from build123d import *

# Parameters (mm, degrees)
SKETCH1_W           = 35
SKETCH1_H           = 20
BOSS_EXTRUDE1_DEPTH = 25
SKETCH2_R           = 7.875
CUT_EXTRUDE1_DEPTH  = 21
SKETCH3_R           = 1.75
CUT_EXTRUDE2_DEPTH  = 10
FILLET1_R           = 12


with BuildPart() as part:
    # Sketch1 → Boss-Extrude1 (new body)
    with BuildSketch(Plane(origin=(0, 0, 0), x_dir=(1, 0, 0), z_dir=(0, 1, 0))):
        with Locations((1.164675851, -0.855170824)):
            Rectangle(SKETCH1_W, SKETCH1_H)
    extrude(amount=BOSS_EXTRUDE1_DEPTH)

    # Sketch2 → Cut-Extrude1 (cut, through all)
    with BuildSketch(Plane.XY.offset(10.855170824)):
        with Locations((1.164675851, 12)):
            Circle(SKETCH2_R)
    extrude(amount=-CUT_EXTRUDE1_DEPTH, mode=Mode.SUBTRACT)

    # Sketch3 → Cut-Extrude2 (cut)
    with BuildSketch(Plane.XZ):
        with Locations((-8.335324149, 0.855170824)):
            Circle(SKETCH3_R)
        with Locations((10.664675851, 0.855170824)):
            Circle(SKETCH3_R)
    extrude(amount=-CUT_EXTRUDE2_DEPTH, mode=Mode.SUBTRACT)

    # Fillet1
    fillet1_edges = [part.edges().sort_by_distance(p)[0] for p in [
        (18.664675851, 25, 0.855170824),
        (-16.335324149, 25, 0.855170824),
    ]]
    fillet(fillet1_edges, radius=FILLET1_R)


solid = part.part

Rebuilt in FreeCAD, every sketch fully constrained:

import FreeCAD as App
import Part
import Sketcher
from FreeCAD import Vector


def edges_at(feature, points):
    """Names of the edges that pass closest to the given points."""
    edges = feature.Shape.Edges
    near = lambda p: min(range(len(edges)), key=lambda i: edges[i].distToShape(Part.Vertex(*p))[0])
    return sorted({f"Edge{near(p) + 1}" for p in points})

doc = App.newDocument("Part")
body = doc.addObject("PartDesign::Body", "Body")

# Sketch on XZ plane
sketch1 = body.newObject("Sketcher::SketchObject", "Sketch")
sketch1.AttachmentSupport = (doc.getObject("XZ_Plane"), [""])
sketch1.MapMode = "FlatFace"
sketch1.addGeometry([
    Part.LineSegment(Vector(-16, -9, 0), Vector(-16, 11, 0)),
    Part.LineSegment(Vector(-16, 11, 0), Vector(19, 11, 0)),
    Part.LineSegment(Vector(19, 11, 0), Vector(19, -9, 0)),
    Part.LineSegment(Vector(19, -9, 0), Vector(-16, -9, 0)),
], False)
sketch1.addConstraint([
    Sketcher.Constraint("Coincident", 0, 2, 1, 1),
    Sketcher.Constraint("Coincident", 1, 2, 2, 1),
    Sketcher.Constraint("Coincident", 2, 2, 3, 1),
    Sketcher.Constraint("Coincident", 3, 2, 0, 1),
    Sketcher.Constraint("Vertical", 0),
    Sketcher.Constraint("Horizontal", 1),
    Sketcher.Constraint("Vertical", 2),
    Sketcher.Constraint("Horizontal", 3),
    Sketcher.Constraint("DistanceX", 1, 1, 1, 2, 35.0),
    Sketcher.Constraint("DistanceY", 0, 1, 0, 2, 20.0),
    Sketcher.Constraint("DistanceY", -1, 1, 0, 2, 10.855171),
    Sketcher.Constraint("DistanceX", 0, 2, -1, 1, 16.335324),
])
pad1 = body.newObject("PartDesign::Pad", "Pad")
pad1.Profile = sketch1
pad1.Length = 25
pad1.Reversed = True

# Sketch on XY plane
sketch2 = body.newObject("Sketcher::SketchObject", "Sketch001")
sketch2.AttachmentSupport = (doc.getObject("XY_Plane"), [""])
sketch2.MapMode = "FlatFace"
sketch2.AttachmentOffset = App.Placement(Vector(0, 0, 10.855171), App.Rotation())
sketch2.addGeometry(Part.Circle(Vector(1, 12, 0), Vector(0, 0, 1), 8), False)
sketch2.addConstraint([
    Sketcher.Constraint("Diameter", 0, 15.75),
    Sketcher.Constraint("DistanceY", -1, 1, 0, 3, 12.0),
    Sketcher.Constraint("DistanceX", -1, 1, 0, 3, 1.164676),
])
pocket1 = body.newObject("PartDesign::Pocket", "Pocket")
pocket1.Profile = sketch2
pocket1.Type = "ThroughAll"

# Sketch on XZ plane
sketch3 = body.newObject("Sketcher::SketchObject", "Sketch002")
sketch3.AttachmentSupport = (doc.getObject("XZ_Plane"), [""])
sketch3.MapMode = "FlatFace"
sketch3.addGeometry([
    Part.Circle(Vector(-8.3, 0.9, 0), Vector(0, 0, 1), 1.8),
    Part.Circle(Vector(10.7, 0.9, 0), Vector(0, 0, 1), 1.8),
], False)
sketch3.addConstraint([
    Sketcher.Constraint("Equal", 0, 1),
    Sketcher.Constraint("Horizontal", 0, 3, 1, 3),
    Sketcher.Constraint("Diameter", 0, 3.5),
    Sketcher.Constraint("DistanceX", 0, 3, 1, 3, 19.0),
    Sketcher.Constraint("DistanceY", -1, 1, 0, 3, 0.855171),
    Sketcher.Constraint("DistanceX", 0, 3, -1, 1, 8.335324),
])
pocket2 = body.newObject("PartDesign::Pocket", "Pocket001")
pocket2.Profile = sketch3
pocket2.Length = 10
doc.recompute()

fillet = body.newObject("PartDesign::Fillet", "Fillet")
fillet.Base = (pocket2, edges_at(pocket2, [(18.665, 25, 0.855), (-16.335, 25, 0.855)]))
fillet.Radius = 12

doc.recompute()
